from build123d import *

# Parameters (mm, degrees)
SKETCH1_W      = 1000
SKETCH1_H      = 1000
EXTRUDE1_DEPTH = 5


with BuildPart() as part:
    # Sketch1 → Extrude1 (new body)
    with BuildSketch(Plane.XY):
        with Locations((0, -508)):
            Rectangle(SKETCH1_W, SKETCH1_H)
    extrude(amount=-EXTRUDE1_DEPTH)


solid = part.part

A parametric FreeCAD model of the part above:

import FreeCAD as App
import Part
import Sketcher

doc = App.newDocument("Part")
params = doc.addObject("Spreadsheet::Sheet", "Params")
for row, (alias, value) in enumerate([
    ("sketch1_width", "1000 mm"),
    ("pad1_length", "5 mm"),
], start=1):
    params.set(f"A{row}", alias)
    params.set(f"B{row}", "=" + value)
    params.setAlias(f"B{row}", alias)

body = doc.addObject("PartDesign::Body", "Body")

sketch1 = doc.addObject("Sketcher::SketchObject", "Sketch")
body.addObject(sketch1)
sketch1.AttachmentSupport = (doc.XY_Plane, [""])
sketch1.MapMode = "FlatFace"
sketch1.addGeometry([
    Part.LineSegment(App.Vector(-500, -8, 0), App.Vector(-500, -1008, 0)),
    Part.LineSegment(App.Vector(-500, -1008, 0), App.Vector(500, -1008, 0)),
    Part.LineSegment(App.Vector(500, -1008, 0), App.Vector(500, -8, 0)),
    Part.LineSegment(App.Vector(500, -8, 0), App.Vector(-500, -8, 0)),
], False)
sketch1.addConstraint([
    Sketcher.Constraint("Coincident", 0, 2, 1, 1),
    Sketcher.Constraint("Coincident", 1, 2, 2, 1),
    Sketcher.Constraint("Coincident", 2, 2, 3, 1),
    Sketcher.Constraint("Coincident", 3, 2, 0, 1),
    Sketcher.Constraint("Vertical", 0),
    Sketcher.Constraint("Horizontal", 1),
    Sketcher.Constraint("Vertical", 2),
    Sketcher.Constraint("Horizontal", 3),
    Sketcher.Constraint("Equal", 3, 0),
    Sketcher.Constraint("DistanceX", 1, 1, 1, 2, 1000.0),
    Sketcher.Constraint("DistanceX", 0, 2, -1, 1, 500.0),
    Sketcher.Constraint("DistanceY", 0, 2, -1, 1, 1008.0),
])
sketch1.setExpression("Constraints[9]", "Params.sketch1_width")
pad1 = doc.addObject("PartDesign::Pad", "Pad")
body.addObject(pad1)
pad1.Profile = sketch1
pad1.setExpression("Length", "Params.pad1_length")
pad1.Reversed = True

doc.recompute()
